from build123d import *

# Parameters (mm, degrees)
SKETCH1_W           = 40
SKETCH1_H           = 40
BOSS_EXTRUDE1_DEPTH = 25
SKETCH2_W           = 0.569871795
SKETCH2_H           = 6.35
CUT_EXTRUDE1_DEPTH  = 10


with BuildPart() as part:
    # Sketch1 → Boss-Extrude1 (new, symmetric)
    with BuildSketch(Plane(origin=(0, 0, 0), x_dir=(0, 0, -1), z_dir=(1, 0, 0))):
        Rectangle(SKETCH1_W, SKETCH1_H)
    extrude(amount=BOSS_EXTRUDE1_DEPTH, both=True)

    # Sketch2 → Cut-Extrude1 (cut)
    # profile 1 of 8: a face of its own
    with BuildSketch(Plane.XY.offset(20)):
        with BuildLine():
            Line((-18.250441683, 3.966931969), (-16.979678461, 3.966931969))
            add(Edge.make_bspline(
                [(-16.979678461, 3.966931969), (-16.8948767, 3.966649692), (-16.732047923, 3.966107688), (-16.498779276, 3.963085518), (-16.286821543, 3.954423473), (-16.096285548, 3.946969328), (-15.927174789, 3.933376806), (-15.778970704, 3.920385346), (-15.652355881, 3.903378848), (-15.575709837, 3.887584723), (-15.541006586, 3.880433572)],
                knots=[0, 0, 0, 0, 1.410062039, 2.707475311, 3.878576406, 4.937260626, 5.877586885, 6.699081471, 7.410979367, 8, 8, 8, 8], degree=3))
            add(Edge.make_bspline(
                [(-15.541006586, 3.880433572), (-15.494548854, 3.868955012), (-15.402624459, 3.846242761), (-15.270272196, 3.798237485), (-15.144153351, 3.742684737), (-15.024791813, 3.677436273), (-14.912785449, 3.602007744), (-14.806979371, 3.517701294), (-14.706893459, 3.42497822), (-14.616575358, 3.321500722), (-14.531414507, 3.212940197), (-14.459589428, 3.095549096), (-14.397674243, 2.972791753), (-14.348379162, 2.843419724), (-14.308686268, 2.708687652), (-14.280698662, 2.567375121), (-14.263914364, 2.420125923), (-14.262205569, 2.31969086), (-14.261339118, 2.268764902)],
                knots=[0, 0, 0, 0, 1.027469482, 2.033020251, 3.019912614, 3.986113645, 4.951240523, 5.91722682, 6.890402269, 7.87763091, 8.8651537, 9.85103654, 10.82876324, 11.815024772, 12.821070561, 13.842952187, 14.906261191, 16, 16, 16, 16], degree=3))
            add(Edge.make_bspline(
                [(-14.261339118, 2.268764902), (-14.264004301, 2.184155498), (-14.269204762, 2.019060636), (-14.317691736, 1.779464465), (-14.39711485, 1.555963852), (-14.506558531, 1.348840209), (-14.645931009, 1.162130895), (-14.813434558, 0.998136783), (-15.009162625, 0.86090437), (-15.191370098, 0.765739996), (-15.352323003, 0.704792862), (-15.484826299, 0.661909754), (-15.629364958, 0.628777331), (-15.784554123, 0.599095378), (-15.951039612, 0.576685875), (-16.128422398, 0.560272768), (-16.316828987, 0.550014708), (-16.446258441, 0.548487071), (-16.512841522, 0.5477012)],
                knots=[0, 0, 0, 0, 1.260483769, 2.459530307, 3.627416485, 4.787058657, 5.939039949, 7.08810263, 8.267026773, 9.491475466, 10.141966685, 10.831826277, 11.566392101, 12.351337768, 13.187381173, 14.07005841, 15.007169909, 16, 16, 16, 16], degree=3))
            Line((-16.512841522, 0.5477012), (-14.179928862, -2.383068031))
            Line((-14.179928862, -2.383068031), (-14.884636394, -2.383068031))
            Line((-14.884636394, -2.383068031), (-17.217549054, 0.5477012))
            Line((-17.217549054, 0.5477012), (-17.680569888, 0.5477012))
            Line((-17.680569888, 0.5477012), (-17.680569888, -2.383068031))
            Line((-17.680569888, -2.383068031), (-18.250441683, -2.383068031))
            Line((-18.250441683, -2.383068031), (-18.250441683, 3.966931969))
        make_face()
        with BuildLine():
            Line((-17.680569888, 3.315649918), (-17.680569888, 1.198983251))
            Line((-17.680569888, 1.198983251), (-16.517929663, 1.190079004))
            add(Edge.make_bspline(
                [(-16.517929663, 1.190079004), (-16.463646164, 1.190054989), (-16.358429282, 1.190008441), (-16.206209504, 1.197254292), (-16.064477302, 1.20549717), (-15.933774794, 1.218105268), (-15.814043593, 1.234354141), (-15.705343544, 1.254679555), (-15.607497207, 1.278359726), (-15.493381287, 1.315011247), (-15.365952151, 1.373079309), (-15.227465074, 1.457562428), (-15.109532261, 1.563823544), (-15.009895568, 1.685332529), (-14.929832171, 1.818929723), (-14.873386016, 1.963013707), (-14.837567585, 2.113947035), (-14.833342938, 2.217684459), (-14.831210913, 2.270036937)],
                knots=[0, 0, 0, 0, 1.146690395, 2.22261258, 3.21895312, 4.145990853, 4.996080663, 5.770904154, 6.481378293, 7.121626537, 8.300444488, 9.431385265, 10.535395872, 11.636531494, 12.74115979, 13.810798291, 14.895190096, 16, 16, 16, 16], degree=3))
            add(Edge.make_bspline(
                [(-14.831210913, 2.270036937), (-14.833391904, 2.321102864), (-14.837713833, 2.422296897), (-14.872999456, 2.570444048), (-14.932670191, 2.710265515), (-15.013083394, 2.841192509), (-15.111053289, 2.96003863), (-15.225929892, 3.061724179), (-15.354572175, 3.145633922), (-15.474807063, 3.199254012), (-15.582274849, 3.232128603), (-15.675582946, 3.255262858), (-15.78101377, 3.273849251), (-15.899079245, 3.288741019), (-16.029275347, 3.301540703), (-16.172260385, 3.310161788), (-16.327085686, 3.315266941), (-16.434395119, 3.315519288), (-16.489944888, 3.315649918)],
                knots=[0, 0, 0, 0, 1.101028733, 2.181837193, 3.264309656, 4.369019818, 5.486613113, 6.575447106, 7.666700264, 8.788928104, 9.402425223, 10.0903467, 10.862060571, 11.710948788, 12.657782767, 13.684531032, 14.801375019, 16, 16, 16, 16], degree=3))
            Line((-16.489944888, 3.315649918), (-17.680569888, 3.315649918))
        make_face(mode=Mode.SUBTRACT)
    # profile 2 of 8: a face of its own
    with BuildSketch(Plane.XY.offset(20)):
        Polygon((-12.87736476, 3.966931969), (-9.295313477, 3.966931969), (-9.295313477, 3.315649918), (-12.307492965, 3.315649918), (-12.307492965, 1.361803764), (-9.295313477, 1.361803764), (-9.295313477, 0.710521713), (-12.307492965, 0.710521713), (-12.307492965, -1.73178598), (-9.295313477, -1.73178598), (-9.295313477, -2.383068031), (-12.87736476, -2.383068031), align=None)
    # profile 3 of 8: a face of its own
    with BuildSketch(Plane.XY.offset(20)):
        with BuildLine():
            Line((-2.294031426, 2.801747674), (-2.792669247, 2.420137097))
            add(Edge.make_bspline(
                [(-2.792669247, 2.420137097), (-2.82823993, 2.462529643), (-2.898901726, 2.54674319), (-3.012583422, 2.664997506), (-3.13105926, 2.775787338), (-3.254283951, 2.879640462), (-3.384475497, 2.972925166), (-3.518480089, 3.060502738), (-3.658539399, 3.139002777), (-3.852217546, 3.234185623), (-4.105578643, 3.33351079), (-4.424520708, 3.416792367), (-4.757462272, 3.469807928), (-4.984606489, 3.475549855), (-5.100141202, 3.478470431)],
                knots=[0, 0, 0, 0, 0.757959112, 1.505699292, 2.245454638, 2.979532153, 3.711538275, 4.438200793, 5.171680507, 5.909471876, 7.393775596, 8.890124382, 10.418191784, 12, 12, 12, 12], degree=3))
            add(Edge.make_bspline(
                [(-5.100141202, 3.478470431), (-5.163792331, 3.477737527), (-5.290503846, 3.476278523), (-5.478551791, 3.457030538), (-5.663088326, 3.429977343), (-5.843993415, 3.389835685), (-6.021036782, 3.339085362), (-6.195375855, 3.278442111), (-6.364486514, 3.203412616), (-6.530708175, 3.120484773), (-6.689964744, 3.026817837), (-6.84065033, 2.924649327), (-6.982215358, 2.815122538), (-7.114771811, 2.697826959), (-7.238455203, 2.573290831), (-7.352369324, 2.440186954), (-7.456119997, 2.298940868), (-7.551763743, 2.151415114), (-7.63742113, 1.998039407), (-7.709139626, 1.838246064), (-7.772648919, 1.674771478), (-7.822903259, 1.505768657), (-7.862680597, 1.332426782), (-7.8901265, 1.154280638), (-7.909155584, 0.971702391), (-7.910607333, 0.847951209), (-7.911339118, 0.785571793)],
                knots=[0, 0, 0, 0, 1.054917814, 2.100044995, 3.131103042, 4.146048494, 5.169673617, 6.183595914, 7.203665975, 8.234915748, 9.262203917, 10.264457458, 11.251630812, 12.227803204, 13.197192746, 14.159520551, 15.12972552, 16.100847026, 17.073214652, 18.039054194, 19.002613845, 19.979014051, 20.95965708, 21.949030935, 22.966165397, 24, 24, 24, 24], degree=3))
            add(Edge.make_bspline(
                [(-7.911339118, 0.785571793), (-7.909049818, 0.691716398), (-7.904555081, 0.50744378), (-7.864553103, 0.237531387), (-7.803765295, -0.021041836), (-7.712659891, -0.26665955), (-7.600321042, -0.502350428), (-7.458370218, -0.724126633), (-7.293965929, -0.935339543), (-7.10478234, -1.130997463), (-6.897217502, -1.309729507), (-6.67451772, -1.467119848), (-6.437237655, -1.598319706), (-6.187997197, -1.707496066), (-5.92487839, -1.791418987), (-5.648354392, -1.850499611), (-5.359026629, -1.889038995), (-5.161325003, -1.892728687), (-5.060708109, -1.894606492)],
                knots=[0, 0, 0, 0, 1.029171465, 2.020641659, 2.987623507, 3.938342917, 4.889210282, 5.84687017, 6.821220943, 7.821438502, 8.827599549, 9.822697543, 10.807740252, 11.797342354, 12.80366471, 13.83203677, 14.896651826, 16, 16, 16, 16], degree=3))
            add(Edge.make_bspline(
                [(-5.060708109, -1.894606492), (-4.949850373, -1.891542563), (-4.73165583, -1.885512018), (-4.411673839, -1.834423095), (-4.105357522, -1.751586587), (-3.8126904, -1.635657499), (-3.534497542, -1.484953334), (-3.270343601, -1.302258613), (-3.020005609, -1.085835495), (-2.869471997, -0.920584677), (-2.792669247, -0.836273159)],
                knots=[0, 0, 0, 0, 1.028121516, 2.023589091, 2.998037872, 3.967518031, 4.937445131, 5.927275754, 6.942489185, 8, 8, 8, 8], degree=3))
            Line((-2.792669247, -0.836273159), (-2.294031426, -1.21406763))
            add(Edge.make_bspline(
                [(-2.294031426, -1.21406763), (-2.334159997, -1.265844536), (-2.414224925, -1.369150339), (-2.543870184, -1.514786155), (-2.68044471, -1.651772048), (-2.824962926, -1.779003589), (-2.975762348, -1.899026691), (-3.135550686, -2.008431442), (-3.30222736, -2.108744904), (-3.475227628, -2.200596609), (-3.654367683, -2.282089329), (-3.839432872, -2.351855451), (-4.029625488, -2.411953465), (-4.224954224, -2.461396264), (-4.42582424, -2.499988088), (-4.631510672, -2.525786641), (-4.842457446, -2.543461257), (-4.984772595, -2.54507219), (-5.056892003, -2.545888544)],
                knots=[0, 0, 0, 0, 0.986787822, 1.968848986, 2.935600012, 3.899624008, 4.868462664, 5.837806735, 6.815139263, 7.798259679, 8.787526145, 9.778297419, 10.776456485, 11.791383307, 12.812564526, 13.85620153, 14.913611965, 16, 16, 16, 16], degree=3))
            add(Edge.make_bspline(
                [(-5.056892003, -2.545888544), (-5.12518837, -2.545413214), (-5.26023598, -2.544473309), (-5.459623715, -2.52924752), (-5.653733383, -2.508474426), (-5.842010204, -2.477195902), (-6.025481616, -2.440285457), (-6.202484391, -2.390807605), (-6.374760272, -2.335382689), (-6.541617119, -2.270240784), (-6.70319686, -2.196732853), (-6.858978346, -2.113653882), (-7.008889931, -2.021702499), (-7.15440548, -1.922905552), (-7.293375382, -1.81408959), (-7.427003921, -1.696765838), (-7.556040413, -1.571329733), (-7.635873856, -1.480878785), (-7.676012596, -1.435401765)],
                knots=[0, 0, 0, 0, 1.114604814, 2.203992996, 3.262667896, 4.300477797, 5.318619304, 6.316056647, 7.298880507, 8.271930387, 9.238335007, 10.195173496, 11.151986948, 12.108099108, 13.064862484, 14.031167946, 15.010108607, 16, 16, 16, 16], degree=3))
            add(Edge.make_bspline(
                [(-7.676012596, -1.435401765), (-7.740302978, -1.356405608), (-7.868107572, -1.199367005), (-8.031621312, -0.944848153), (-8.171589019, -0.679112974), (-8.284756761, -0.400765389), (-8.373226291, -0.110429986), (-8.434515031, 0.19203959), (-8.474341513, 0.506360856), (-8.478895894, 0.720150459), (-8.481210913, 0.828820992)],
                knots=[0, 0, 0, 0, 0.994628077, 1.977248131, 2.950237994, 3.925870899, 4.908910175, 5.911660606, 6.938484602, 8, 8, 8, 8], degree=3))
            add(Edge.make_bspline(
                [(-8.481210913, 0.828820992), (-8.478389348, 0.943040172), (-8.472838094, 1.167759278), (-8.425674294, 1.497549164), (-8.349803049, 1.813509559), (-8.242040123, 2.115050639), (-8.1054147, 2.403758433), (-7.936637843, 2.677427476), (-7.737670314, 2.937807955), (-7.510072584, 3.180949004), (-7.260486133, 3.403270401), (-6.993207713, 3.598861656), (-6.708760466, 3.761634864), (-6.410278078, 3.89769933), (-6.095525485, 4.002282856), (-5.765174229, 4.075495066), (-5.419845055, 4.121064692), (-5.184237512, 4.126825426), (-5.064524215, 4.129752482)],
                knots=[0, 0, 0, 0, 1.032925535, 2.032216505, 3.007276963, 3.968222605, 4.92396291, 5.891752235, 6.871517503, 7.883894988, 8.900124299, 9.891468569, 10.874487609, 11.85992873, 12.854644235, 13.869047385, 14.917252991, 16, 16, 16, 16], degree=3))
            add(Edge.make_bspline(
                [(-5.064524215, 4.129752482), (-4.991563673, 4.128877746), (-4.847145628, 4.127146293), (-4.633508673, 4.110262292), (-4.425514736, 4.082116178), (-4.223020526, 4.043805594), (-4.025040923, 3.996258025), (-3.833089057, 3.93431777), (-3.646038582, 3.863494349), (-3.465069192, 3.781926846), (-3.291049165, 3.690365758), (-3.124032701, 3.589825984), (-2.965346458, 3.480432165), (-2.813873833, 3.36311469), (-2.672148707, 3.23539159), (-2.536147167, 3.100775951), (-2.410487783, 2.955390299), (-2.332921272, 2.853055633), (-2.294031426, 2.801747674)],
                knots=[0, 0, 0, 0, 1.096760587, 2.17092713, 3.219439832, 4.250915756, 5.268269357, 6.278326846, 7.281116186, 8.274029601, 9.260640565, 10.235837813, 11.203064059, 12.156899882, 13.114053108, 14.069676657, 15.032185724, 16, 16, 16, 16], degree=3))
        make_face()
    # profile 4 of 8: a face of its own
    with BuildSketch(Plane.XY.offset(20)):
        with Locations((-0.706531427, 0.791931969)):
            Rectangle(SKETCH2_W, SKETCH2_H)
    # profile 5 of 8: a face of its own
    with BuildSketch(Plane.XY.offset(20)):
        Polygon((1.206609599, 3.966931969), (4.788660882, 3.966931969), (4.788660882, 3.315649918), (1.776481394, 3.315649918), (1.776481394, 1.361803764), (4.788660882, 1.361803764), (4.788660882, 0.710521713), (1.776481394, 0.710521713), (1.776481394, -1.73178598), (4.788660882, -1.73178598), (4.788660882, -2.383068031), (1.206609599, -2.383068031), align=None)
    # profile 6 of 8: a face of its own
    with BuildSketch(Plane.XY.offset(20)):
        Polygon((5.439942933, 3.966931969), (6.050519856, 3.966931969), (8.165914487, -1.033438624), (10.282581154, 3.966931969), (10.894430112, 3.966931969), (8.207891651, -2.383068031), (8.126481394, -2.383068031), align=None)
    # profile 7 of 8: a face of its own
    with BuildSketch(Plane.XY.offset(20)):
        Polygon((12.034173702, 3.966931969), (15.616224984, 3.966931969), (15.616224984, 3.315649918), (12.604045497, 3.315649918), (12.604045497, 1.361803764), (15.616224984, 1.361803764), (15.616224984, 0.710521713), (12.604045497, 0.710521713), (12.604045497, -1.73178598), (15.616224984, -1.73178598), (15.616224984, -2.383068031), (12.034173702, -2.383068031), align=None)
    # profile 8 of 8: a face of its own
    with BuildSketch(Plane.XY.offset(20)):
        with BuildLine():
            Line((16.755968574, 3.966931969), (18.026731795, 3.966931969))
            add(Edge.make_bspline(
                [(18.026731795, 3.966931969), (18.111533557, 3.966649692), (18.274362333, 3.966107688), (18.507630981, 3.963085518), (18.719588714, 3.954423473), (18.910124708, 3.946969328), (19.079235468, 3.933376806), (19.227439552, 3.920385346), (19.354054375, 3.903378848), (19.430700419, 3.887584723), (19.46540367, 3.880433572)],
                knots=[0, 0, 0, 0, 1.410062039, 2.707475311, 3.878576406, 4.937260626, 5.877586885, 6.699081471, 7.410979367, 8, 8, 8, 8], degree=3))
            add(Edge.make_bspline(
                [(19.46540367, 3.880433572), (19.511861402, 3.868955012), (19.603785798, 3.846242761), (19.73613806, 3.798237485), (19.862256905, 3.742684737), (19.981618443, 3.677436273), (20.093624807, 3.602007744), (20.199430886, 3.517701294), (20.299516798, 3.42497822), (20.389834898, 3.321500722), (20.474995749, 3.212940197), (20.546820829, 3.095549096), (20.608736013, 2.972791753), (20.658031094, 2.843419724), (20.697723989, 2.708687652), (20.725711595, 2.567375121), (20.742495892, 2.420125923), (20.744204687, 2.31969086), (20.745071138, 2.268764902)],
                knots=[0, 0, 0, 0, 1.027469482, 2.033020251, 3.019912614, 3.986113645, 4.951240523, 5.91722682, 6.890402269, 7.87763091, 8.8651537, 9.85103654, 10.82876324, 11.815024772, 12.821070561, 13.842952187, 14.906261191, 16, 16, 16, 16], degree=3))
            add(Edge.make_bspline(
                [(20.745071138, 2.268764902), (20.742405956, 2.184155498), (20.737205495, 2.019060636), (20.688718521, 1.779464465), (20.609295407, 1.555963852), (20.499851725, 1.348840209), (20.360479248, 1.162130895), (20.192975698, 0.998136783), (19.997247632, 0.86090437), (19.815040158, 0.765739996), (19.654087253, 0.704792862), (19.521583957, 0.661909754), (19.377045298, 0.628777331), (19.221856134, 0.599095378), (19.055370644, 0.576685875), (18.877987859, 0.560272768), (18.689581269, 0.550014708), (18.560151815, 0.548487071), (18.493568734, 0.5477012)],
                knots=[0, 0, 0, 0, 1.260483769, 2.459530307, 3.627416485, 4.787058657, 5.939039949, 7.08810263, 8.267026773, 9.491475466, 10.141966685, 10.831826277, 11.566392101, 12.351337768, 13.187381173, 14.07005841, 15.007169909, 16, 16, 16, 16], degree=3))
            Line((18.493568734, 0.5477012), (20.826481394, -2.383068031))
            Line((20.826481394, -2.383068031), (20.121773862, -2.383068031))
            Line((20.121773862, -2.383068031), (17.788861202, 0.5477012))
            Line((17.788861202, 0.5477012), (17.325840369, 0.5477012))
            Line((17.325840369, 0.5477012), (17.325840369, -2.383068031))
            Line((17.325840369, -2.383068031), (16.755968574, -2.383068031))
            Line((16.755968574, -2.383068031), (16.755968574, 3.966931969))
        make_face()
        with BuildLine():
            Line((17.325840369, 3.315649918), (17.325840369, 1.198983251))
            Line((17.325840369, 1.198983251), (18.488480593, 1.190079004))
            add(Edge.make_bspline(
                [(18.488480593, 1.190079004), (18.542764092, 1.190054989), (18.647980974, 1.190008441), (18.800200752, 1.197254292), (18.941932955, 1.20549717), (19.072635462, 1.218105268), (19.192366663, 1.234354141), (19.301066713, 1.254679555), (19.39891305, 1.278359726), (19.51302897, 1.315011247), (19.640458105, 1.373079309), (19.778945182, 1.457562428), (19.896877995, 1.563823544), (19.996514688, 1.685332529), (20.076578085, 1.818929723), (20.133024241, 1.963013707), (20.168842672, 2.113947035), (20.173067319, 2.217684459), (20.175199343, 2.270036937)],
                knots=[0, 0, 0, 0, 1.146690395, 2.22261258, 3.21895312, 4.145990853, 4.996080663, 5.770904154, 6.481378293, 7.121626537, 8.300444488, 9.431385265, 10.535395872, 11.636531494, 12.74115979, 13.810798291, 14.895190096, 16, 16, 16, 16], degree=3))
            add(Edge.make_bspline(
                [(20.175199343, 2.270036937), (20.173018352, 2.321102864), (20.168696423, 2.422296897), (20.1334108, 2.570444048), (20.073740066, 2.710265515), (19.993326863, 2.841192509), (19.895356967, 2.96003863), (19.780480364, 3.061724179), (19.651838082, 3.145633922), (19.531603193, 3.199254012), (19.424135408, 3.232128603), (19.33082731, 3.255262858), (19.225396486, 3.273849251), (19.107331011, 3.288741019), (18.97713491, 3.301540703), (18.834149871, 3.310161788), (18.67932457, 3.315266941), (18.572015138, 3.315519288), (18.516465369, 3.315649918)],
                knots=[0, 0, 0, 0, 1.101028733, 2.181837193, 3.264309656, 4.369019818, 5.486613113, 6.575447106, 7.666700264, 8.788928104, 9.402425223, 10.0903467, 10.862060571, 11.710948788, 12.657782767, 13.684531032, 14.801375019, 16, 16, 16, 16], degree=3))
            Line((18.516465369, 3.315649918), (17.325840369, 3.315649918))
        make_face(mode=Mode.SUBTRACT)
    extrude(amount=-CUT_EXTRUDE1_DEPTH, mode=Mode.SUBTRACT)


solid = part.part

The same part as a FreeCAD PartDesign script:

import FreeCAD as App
import Part
import Sketcher


def add_polygon(sketch, points):
    """Adds a closed chain of lines whose ends are joined by coincident constraints."""
    first, n = sketch.GeometryCount, len(points)
    for a, b in zip(points, points[1:] + points[:1]):
        sketch.addGeometry(Part.LineSegment(App.Vector(*a, 0), App.Vector(*b, 0)), False)
    for i in range(n):
        sketch.addConstraint(Sketcher.Constraint("Coincident", first + i, 2, first + (i + 1) % n, 1))

doc = App.newDocument("Part")
body = doc.addObject("PartDesign::Body", "Body")

sketch1 = body.newObject("Sketcher::SketchObject", "Sketch")
sketch1.AttachmentSupport = (doc.getObject("YZ_Plane"), [""])
sketch1.MapMode = "FlatFace"
add_polygon(sketch1, [(20, 20), (-20, 20), (-20, -20), (20, -20)])
sketch1.addConstraint(Sketcher.Constraint("Horizontal", 0))
sketch1.addConstraint(Sketcher.Constraint("Vertical", 1))
sketch1.addConstraint(Sketcher.Constraint("Horizontal", 2))
sketch1.addConstraint(Sketcher.Constraint("Vertical", 3))
sketch1.addConstraint(Sketcher.Constraint("Symmetric", 0, 2, 2, 2, -1, 1))
sketch1.addConstraint(Sketcher.Constraint("Equal", 2, 1))
sketch1.addConstraint(Sketcher.Constraint("DistanceX", 0, 2, 0, 1, 40.0))
pad1 = body.newObject("PartDesign::Pad", "Pad")
pad1.Profile = sketch1
pad1.Length = 50
pad1.Midplane = True

sketch2 = body.newObject("Sketcher::SketchObject", "Sketch001")
sketch2.AttachmentSupport = (doc.getObject("XY_Plane"), [""])
sketch2.MapMode = "FlatFace"
sketch2.AttachmentOffset = App.Placement(App.Vector(0, 0, 20), App.Rotation())
sketch2.addGeometry(Part.LineSegment(App.Vector(-16.979678, 3.966932, 0), App.Vector(-18.250442, 3.966932, 0)), False)
sketch2.addGeometry(Part.LineSegment(App.Vector(-18.250442, 3.966932, 0), App.Vector(-18.250442, -2.383068, 0)), False)
sketch2.addGeometry(Part.LineSegment(App.Vector(-18.250442, -2.383068, 0), App.Vector(-17.68057, -2.383068, 0)), False)
sketch2.addGeometry(Part.LineSegment(App.Vector(-17.68057, -2.383068, 0), App.Vector(-17.68057, 0.547701, 0)), False)
sketch2.addGeometry(Part.LineSegment(App.Vector(-17.68057, 0.547701, 0), App.Vector(-17.217549, 0.547701, 0)), False)
sketch2.addGeometry(Part.LineSegment(App.Vector(-17.217549, 0.547701, 0), App.Vector(-14.884636, -2.383068, 0)), False)
sketch2.addGeometry(Part.LineSegment(App.Vector(-14.884636, -2.383068, 0), App.Vector(-14.179929, -2.383068, 0)), False)
sketch2.addGeometry(Part.LineSegment(App.Vector(-14.179929, -2.383068, 0), App.Vector(-16.512842, 0.547701, 0)), False)
sketch2.addGeometry(Part.BSplineCurve([App.Vector(-14.261339, 2.268765, 0), App.Vector(-14.264004, 2.184155, 0), App.Vector(-14.269205, 2.019061, 0), App.Vector(-14.317692, 1.779464, 0), App.Vector(-14.397115, 1.555964, 0), App.Vector(-14.506559, 1.34884, 0), App.Vector(-14.645931, 1.162131, 0), App.Vector(-14.813435, 0.998137, 0), App.Vector(-15.009163, 0.860904, 0), App.Vector(-15.19137, 0.76574, 0), App.Vector(-15.352323, 0.704793, 0), App.Vector(-15.484826, 0.66191, 0), App.Vector(-15.629365, 0.628777, 0), App.Vector(-15.784554, 0.599095, 0), App.Vector(-15.95104, 0.576686, 0), App.Vector(-16.128422, 0.560273, 0), App.Vector(-16.316829, 0.550015, 0), App.Vector(-16.446258, 0.548487, 0), App.Vector(-16.512842, 0.547701, 0)], [4, 1, 1, 1, 1, 1, 1, 1, 1, 1, 1, 1, 1, 1, 1, 1, 4], [0, 1.260483769, 2.459530307, 3.627416485, 4.787058657, 5.939039949, 7.08810263, 8.267026773, 9.491475466, 10.141966685, 10.831826277, 11.566392101, 12.351337768, 13.187381173, 14.07005841, 15.007169909, 16], False, 3, [1, 1, 1, 1, 1, 1, 1, 1, 1, 1, 1, 1, 1, 1, 1, 1, 1, 1, 1], False), False)
sketch2.addGeometry(Part.BSplineCurve([App.Vector(-15.541007, 3.880434, 0), App.Vector(-15.494549, 3.868955, 0), App.Vector(-15.402624, 3.846243, 0), App.Vector(-15.270272, 3.798237, 0), App.Vector(-15.144153, 3.742685, 0), App.Vector(-15.024792, 3.677436, 0), App.Vector(-14.912785, 3.602008, 0), App.Vector(-14.806979, 3.517701, 0), App.Vector(-14.706893, 3.424978, 0), App.Vector(-14.616575, 3.321501, 0), App.Vector(-14.531415, 3.21294, 0), App.Vector(-14.459589, 3.095549, 0), App.Vector(-14.397674, 2.972792, 0), App.Vector(-14.348379, 2.84342, 0), App.Vector(-14.308686, 2.708688, 0), App.Vector(-14.280699, 2.567375, 0), App.Vector(-14.263914, 2.420126, 0), App.Vector(-14.262206, 2.319691, 0), App.Vector(-14.261339, 2.268765, 0)], [4, 1, 1, 1, 1, 1, 1, 1, 1, 1, 1, 1, 1, 1, 1, 1, 4], [0, 1.027469482, 2.033020251, 3.019912614, 3.986113645, 4.951240523, 5.91722682, 6.890402269, 7.87763091, 8.8651537, 9.85103654, 10.82876324, 11.815024772, 12.821070561, 13.842952187, 14.906261191, 16], False, 3, [1, 1, 1, 1, 1, 1, 1, 1, 1, 1, 1, 1, 1, 1, 1, 1, 1, 1, 1], False), False)
sketch2.addGeometry(Part.BSplineCurve([App.Vector(-16.979678, 3.966932, 0), App.Vector(-16.894877, 3.96665, 0), App.Vector(-16.732048, 3.966108, 0), App.Vector(-16.498779, 3.963086, 0), App.Vector(-16.286822, 3.954423, 0), App.Vector(-16.096286, 3.946969, 0), App.Vector(-15.927175, 3.933377, 0), App.Vector(-15.778971, 3.920385, 0), App.Vector(-15.652356, 3.903379, 0), App.Vector(-15.57571, 3.887585, 0), App.Vector(-15.541007, 3.880434, 0)], [4, 1, 1, 1, 1, 1, 1, 1, 4], [0, 1.410062039, 2.707475311, 3.878576406, 4.937260626, 5.877586885, 6.699081471, 7.410979367, 8], False, 3, [1, 1, 1, 1, 1, 1, 1, 1, 1, 1, 1], False), False)
sketch2.addGeometry(Part.LineSegment(App.Vector(-17.68057, 3.31565, 0), App.Vector(-16.489945, 3.31565, 0)), False)
sketch2.addGeometry(Part.BSplineCurve([App.Vector(-14.831211, 2.270037, 0), App.Vector(-14.833392, 2.321103, 0), App.Vector(-14.837714, 2.422297, 0), App.Vector(-14.872999, 2.570444, 0), App.Vector(-14.93267, 2.710266, 0), App.Vector(-15.013083, 2.841193, 0), App.Vector(-15.111053, 2.960039, 0), App.Vector(-15.22593, 3.061724, 0), App.Vector(-15.354572, 3.145634, 0), App.Vector(-15.474807, 3.199254, 0), App.Vector(-15.582275, 3.232129, 0), App.Vector(-15.675583, 3.255263, 0), App.Vector(-15.781014, 3.273849, 0), App.Vector(-15.899079, 3.288741, 0), App.Vector(-16.029275, 3.301541, 0), App.Vector(-16.17226, 3.310162, 0), App.Vector(-16.327086, 3.315267, 0), App.Vector(-16.434395, 3.315519, 0), App.Vector(-16.489945, 3.31565, 0)], [4, 1, 1, 1, 1, 1, 1, 1, 1, 1, 1, 1, 1, 1, 1, 1, 4], [0, 1.101028733, 2.181837193, 3.264309656, 4.369019818, 5.486613113, 6.575447106, 7.666700264, 8.788928104, 9.402425223, 10.0903467, 10.862060571, 11.710948788, 12.657782767, 13.684531032, 14.801375019, 16], False, 3, [1, 1, 1, 1, 1, 1, 1, 1, 1, 1, 1, 1, 1, 1, 1, 1, 1, 1, 1], False), False)
sketch2.addGeometry(Part.BSplineCurve([App.Vector(-16.51793, 1.190079, 0), App.Vector(-16.463646, 1.190055, 0), App.Vector(-16.358429, 1.190008, 0), App.Vector(-16.20621, 1.197254, 0), App.Vector(-16.064477, 1.205497, 0), App.Vector(-15.933775, 1.218105, 0), App.Vector(-15.814044, 1.234354, 0), App.Vector(-15.705344, 1.25468, 0), App.Vector(-15.607497, 1.27836, 0), App.Vector(-15.493381, 1.315011, 0), App.Vector(-15.365952, 1.373079, 0), App.Vector(-15.227465, 1.457562, 0), App.Vector(-15.109532, 1.563824, 0), App.Vector(-15.009896, 1.685333, 0), App.Vector(-14.929832, 1.81893, 0), App.Vector(-14.873386, 1.963014, 0), App.Vector(-14.837568, 2.113947, 0), App.Vector(-14.833343, 2.217684, 0), App.Vector(-14.831211, 2.270037, 0)], [4, 1, 1, 1, 1, 1, 1, 1, 1, 1, 1, 1, 1, 1, 1, 1, 4], [0, 1.146690395, 2.22261258, 3.21895312, 4.145990853, 4.996080663, 5.770904154, 6.481378293, 7.121626537, 8.300444488, 9.431385265, 10.535395872, 11.636531494, 12.74115979, 13.810798291, 14.895190096, 16], False, 3, [1, 1, 1, 1, 1, 1, 1, 1, 1, 1, 1, 1, 1, 1, 1, 1, 1, 1, 1], False), False)
sketch2.addGeometry(Part.LineSegment(App.Vector(-16.51793, 1.190079, 0), App.Vector(-17.68057, 1.198983, 0)), False)
sketch2.addGeometry(Part.LineSegment(App.Vector(-17.68057, 1.198983, 0), App.Vector(-17.68057, 3.31565, 0)), False)
add_polygon(sketch2, [(-9.295313, 3.966932), (-12.877365, 3.966932), (-12.877365, -2.383068), (-9.295313, -2.383068), (-9.295313, -1.731786), (-12.307493, -1.731786), (-12.307493, 0.710522), (-9.295313, 0.710522), (-9.295313, 1.361804), (-12.307493, 1.361804), (-12.307493, 3.31565), (-9.295313, 3.31565)])
sketch2.addGeometry(Part.LineSegment(App.Vector(-2.792669, 2.420137, 0), App.Vector(-2.294031, 2.801748, 0)), False)
sketch2.addGeometry(Part.BSplineCurve([App.Vector(-5.064524, 4.129752, 0), App.Vector(-4.991564, 4.128878, 0), App.Vector(-4.847146, 4.127146, 0), App.Vector(-4.633509, 4.110262, 0), App.Vector(-4.425515, 4.082116, 0), App.Vector(-4.223021, 4.043806, 0), App.Vector(-4.025041, 3.996258, 0), App.Vector(-3.833089, 3.934318, 0), App.Vector(-3.646039, 3.863494, 0), App.Vector(-3.465069, 3.781927, 0), App.Vector(-3.291049, 3.690366, 0), App.Vector(-3.124033, 3.589826, 0), App.Vector(-2.965346, 3.480432, 0), App.Vector(-2.813874, 3.363115, 0), App.Vector(-2.672149, 3.235392, 0), App.Vector(-2.536147, 3.100776, 0), App.Vector(-2.410488, 2.95539, 0), App.Vector(-2.332921, 2.853056, 0), App.Vector(-2.294031, 2.801748, 0)], [4, 1, 1, 1, 1, 1, 1, 1, 1, 1, 1, 1, 1, 1, 1, 1, 4], [0, 1.096760587, 2.17092713, 3.219439832, 4.250915756, 5.268269357, 6.278326846, 7.281116186, 8.274029601, 9.260640565, 10.235837813, 11.203064059, 12.156899882, 13.114053108, 14.069676657, 15.032185724, 16], False, 3, [1, 1, 1, 1, 1, 1, 1, 1, 1, 1, 1, 1, 1, 1, 1, 1, 1, 1, 1], False), False)
sketch2.addGeometry(Part.BSplineCurve([App.Vector(-8.481211, 0.828821, 0), App.Vector(-8.478389, 0.94304, 0), App.Vector(-8.472838, 1.167759, 0), App.Vector(-8.425674, 1.497549, 0), App.Vector(-8.349803, 1.81351, 0), App.Vector(-8.24204, 2.115051, 0), App.Vector(-8.105415, 2.403758, 0), App.Vector(-7.936638, 2.677427, 0), App.Vector(-7.73767, 2.937808, 0), App.Vector(-7.510073, 3.180949, 0), App.Vector(-7.260486, 3.40327, 0), App.Vector(-6.993208, 3.598862, 0), App.Vector(-6.70876, 3.761635, 0), App.Vector(-6.410278, 3.897699, 0), App.Vector(-6.095525, 4.002283, 0), App.Vector(-5.765174, 4.075495, 0), App.Vector(-5.419845, 4.121065, 0), App.Vector(-5.184238, 4.126825, 0), App.Vector(-5.064524, 4.129752, 0)], [4, 1, 1, 1, 1, 1, 1, 1, 1, 1, 1, 1, 1, 1, 1, 1, 4], [0, 1.032925535, 2.032216505, 3.007276963, 3.968222605, 4.92396291, 5.891752235, 6.871517503, 7.883894988, 8.900124299, 9.891468569, 10.874487609, 11.85992873, 12.854644235, 13.869047385, 14.917252991, 16], False, 3, [1, 1, 1, 1, 1, 1, 1, 1, 1, 1, 1, 1, 1, 1, 1, 1, 1, 1, 1], False), False)
sketch2.addGeometry(Part.BSplineCurve([App.Vector(-7.676013, -1.435402, 0), App.Vector(-7.740303, -1.356406, 0), App.Vector(-7.868108, -1.199367, 0), App.Vector(-8.031621, -0.944848, 0), App.Vector(-8.171589, -0.679113, 0), App.Vector(-8.284757, -0.400765, 0), App.Vector(-8.373226, -0.11043, 0), App.Vector(-8.434515, 0.19204, 0), App.Vector(-8.474342, 0.506361, 0), App.Vector(-8.478896, 0.72015, 0), App.Vector(-8.481211, 0.828821, 0)], [4, 1, 1, 1, 1, 1, 1, 1, 4], [0, 0.994628077, 1.977248131, 2.950237994, 3.925870899, 4.908910175, 5.911660606, 6.938484602, 8], False, 3, [1, 1, 1, 1, 1, 1, 1, 1, 1, 1, 1], False), False)
sketch2.addGeometry(Part.BSplineCurve([App.Vector(-5.056892, -2.545889, 0), App.Vector(-5.125188, -2.545413, 0), App.Vector(-5.260236, -2.544473, 0), App.Vector(-5.459624, -2.529248, 0), App.Vector(-5.653733, -2.508474, 0), App.Vector(-5.84201, -2.477196, 0), App.Vector(-6.025482, -2.440285, 0), App.Vector(-6.202484, -2.390808, 0), App.Vector(-6.37476, -2.335383, 0), App.Vector(-6.541617, -2.270241, 0), App.Vector(-6.703197, -2.196733, 0), App.Vector(-6.858978, -2.113654, 0), App.Vector(-7.00889, -2.021702, 0), App.Vector(-7.154405, -1.922906, 0), App.Vector(-7.293375, -1.81409, 0), App.Vector(-7.427004, -1.696766, 0), App.Vector(-7.55604, -1.57133, 0), App.Vector(-7.635874, -1.480879, 0), App.Vector(-7.676013, -1.435402, 0)], [4, 1, 1, 1, 1, 1, 1, 1, 1, 1, 1, 1, 1, 1, 1, 1, 4], [0, 1.114604814, 2.203992996, 3.262667896, 4.300477797, 5.318619304, 6.316056647, 7.298880507, 8.271930387, 9.238335007, 10.195173496, 11.151986948, 12.108099108, 13.064862484, 14.031167946, 15.010108607, 16], False, 3, [1, 1, 1, 1, 1, 1, 1, 1, 1, 1, 1, 1, 1, 1, 1, 1, 1, 1, 1], False), False)
sketch2.addGeometry(Part.BSplineCurve([App.Vector(-2.294031, -1.214068, 0), App.Vector(-2.33416, -1.265845, 0), App.Vector(-2.414225, -1.36915, 0), App.Vector(-2.54387, -1.514786, 0), App.Vector(-2.680445, -1.651772, 0), App.Vector(-2.824963, -1.779004, 0), App.Vector(-2.975762, -1.899027, 0), App.Vector(-3.135551, -2.008431, 0), App.Vector(-3.302227, -2.108745, 0), App.Vector(-3.475228, -2.200597, 0), App.Vector(-3.654368, -2.282089, 0), App.Vector(-3.839433, -2.351855, 0), App.Vector(-4.029625, -2.411953, 0), App.Vector(-4.224954, -2.461396, 0), App.Vector(-4.425824, -2.499988, 0), App.Vector(-4.631511, -2.525787, 0), App.Vector(-4.842457, -2.543461, 0), App.Vector(-4.984773, -2.545072, 0), App.Vector(-5.056892, -2.545889, 0)], [4, 1, 1, 1, 1, 1, 1, 1, 1, 1, 1, 1, 1, 1, 1, 1, 4], [0, 0.986787822, 1.968848986, 2.935600012, 3.899624008, 4.868462664, 5.837806735, 6.815139263, 7.798259679, 8.787526145, 9.778297419, 10.776456485, 11.791383307, 12.812564526, 13.85620153, 14.913611965, 16], False, 3, [1, 1, 1, 1, 1, 1, 1, 1, 1, 1, 1, 1, 1, 1, 1, 1, 1, 1, 1], False), False)
sketch2.addGeometry(Part.LineSegment(App.Vector(-2.294031, -1.214068, 0), App.Vector(-2.792669, -0.836273, 0)), False)
sketch2.addGeometry(Part.BSplineCurve([App.Vector(-5.060708, -1.894606, 0), App.Vector(-4.94985, -1.891543, 0), App.Vector(-4.731656, -1.885512, 0), App.Vector(-4.411674, -1.834423, 0), App.Vector(-4.105358, -1.751587, 0), App.Vector(-3.81269, -1.635657, 0), App.Vector(-3.534498, -1.484953, 0), App.Vector(-3.270344, -1.302259, 0), App.Vector(-3.020006, -1.085835, 0), App.Vector(-2.869472, -0.920585, 0), App.Vector(-2.792669, -0.836273, 0)], [4, 1, 1, 1, 1, 1, 1, 1, 4], [0, 1.028121516, 2.023589091, 2.998037872, 3.967518031, 4.937445131, 5.927275754, 6.942489185, 8], False, 3, [1, 1, 1, 1, 1, 1, 1, 1, 1, 1, 1], False), False)
sketch2.addGeometry(Part.BSplineCurve([App.Vector(-7.911339, 0.785572, 0), App.Vector(-7.90905, 0.691716, 0), App.Vector(-7.904555, 0.507444, 0), App.Vector(-7.864553, 0.237531, 0), App.Vector(-7.803765, -0.021042, 0), App.Vector(-7.71266, -0.26666, 0), App.Vector(-7.600321, -0.50235, 0), App.Vector(-7.45837, -0.724127, 0), App.Vector(-7.293966, -0.93534, 0), App.Vector(-7.104782, -1.130997, 0), App.Vector(-6.897218, -1.30973, 0), App.Vector(-6.674518, -1.46712, 0), App.Vector(-6.437238, -1.59832, 0), App.Vector(-6.187997, -1.707496, 0), App.Vector(-5.924878, -1.791419, 0), App.Vector(-5.648354, -1.8505, 0), App.Vector(-5.359027, -1.889039, 0), App.Vector(-5.161325, -1.892729, 0), App.Vector(-5.060708, -1.894606, 0)], [4, 1, 1, 1, 1, 1, 1, 1, 1, 1, 1, 1, 1, 1, 1, 1, 4], [0, 1.029171465, 2.020641659, 2.987623507, 3.938342917, 4.889210282, 5.84687017, 6.821220943, 7.821438502, 8.827599549, 9.822697543, 10.807740252, 11.797342354, 12.80366471, 13.83203677, 14.896651826, 16], False, 3, [1, 1, 1, 1, 1, 1, 1, 1, 1, 1, 1, 1, 1, 1, 1, 1, 1, 1, 1], False), False)
sketch2.addGeometry(Part.BSplineCurve([App.Vector(-5.100141, 3.47847, 0), App.Vector(-5.163792, 3.477738, 0), App.Vector(-5.290504, 3.476279, 0), App.Vector(-5.478552, 3.457031, 0), App.Vector(-5.663088, 3.429977, 0), App.Vector(-5.843993, 3.389836, 0), App.Vector(-6.021037, 3.339085, 0), App.Vector(-6.195376, 3.278442, 0), App.Vector(-6.364487, 3.203413, 0), App.Vector(-6.530708, 3.120485, 0), App.Vector(-6.689965, 3.026818, 0), App.Vector(-6.84065, 2.924649, 0), App.Vector(-6.982215, 2.815123, 0), App.Vector(-7.114772, 2.697827, 0), App.Vector(-7.238455, 2.573291, 0), App.Vector(-7.352369, 2.440187, 0), App.Vector(-7.45612, 2.298941, 0), App.Vector(-7.551764, 2.151415, 0), App.Vector(-7.637421, 1.998039, 0), App.Vector(-7.70914, 1.838246, 0), App.Vector(-7.772649, 1.674771, 0), App.Vector(-7.822903, 1.505769, 0), App.Vector(-7.862681, 1.332427, 0), App.Vector(-7.890127, 1.154281, 0), App.Vector(-7.909156, 0.971702, 0), App.Vector(-7.910607, 0.847951, 0), App.Vector(-7.911339, 0.785572, 0)], [4, 1, 1, 1, 1, 1, 1, 1, 1, 1, 1, 1, 1, 1, 1, 1, 1, 1, 1, 1, 1, 1, 1, 1, 4], [0, 1.054917814, 2.100044995, 3.131103042, 4.146048494, 5.169673617, 6.183595914, 7.203665975, 8.234915748, 9.262203917, 10.264457458, 11.251630812, 12.227803204, 13.197192746, 14.159520551, 15.12972552, 16.100847026, 17.073214652, 18.039054194, 19.002613845, 19.979014051, 20.95965708, 21.949030935, 22.966165397, 24], False, 3, [1, 1, 1, 1, 1, 1, 1, 1, 1, 1, 1, 1, 1, 1, 1, 1, 1, 1, 1, 1, 1, 1, 1, 1, 1, 1, 1], False), False)
sketch2.addGeometry(Part.BSplineCurve([App.Vector(-2.792669, 2.420137, 0), App.Vector(-2.82824, 2.46253, 0), App.Vector(-2.898902, 2.546743, 0), App.Vector(-3.012583, 2.664998, 0), App.Vector(-3.131059, 2.775787, 0), App.Vector(-3.254284, 2.87964, 0), App.Vector(-3.384475, 2.972925, 0), App.Vector(-3.51848, 3.060503, 0), App.Vector(-3.658539, 3.139003, 0), App.Vector(-3.852218, 3.234186, 0), App.Vector(-4.105579, 3.333511, 0), App.Vector(-4.424521, 3.416792, 0), App.Vector(-4.757462, 3.469808, 0), App.Vector(-4.984606, 3.47555, 0), App.Vector(-5.100141, 3.47847, 0)], [4, 1, 1, 1, 1, 1, 1, 1, 1, 1, 1, 1, 4], [0, 0.757959112, 1.505699292, 2.245454638, 2.979532153, 3.711538275, 4.438200793, 5.171680507, 5.909471876, 7.393775596, 8.890124382, 10.418191784, 12], False, 3, [1, 1, 1, 1, 1, 1, 1, 1, 1, 1, 1, 1, 1, 1, 1], False), False)
add_polygon(sketch2, [(-0.991467, 3.966932), (-0.991467, -2.383068), (-0.421596, -2.383068), (-0.421596, 3.966932)])
add_polygon(sketch2, [(4.788661, 3.966932), (1.20661, 3.966932), (1.20661, -2.383068), (4.788661, -2.383068), (4.788661, -1.731786), (1.776481, -1.731786), (1.776481, 0.710522), (4.788661, 0.710522), (4.788661, 1.361804), (1.776481, 1.361804), (1.776481, 3.31565), (4.788661, 3.31565)])
add_polygon(sketch2, [(6.05052, 3.966932), (5.439943, 3.966932), (8.126481, -2.383068), (8.207892, -2.383068), (10.89443, 3.966932), (10.282581, 3.966932), (8.165914, -1.033439)])
add_polygon(sketch2, [(15.616225, 3.966932), (12.034174, 3.966932), (12.034174, -2.383068), (15.616225, -2.383068), (15.616225, -1.731786), (12.604045, -1.731786), (12.604045, 0.710522), (15.616225, 0.710522), (15.616225, 1.361804), (12.604045, 1.361804), (12.604045, 3.31565), (15.616225, 3.31565)])
sketch2.addGeometry(Part.LineSegment(App.Vector(18.026732, 3.966932, 0), App.Vector(16.755969, 3.966932, 0)), False)
sketch2.addGeometry(Part.LineSegment(App.Vector(16.755969, 3.966932, 0), App.Vector(16.755969, -2.383068, 0)), False)
sketch2.addGeometry(Part.LineSegment(App.Vector(16.755969, -2.383068, 0), App.Vector(17.32584, -2.383068, 0)), False)
sketch2.addGeometry(Part.LineSegment(App.Vector(17.32584, -2.383068, 0), App.Vector(17.32584, 0.547701, 0)), False)
sketch2.addGeometry(Part.LineSegment(App.Vector(17.32584, 0.547701, 0), App.Vector(17.788861, 0.547701, 0)), False)
sketch2.addGeometry(Part.LineSegment(App.Vector(17.788861, 0.547701, 0), App.Vector(20.121774, -2.383068, 0)), False)
sketch2.addGeometry(Part.LineSegment(App.Vector(20.121774, -2.383068, 0), App.Vector(20.826481, -2.383068, 0)), False)
sketch2.addGeometry(Part.LineSegment(App.Vector(20.826481, -2.383068, 0), App.Vector(18.493569, 0.547701, 0)), False)
sketch2.addGeometry(Part.BSplineCurve([App.Vector(20.745071, 2.268765, 0), App.Vector(20.742406, 2.184155, 0), App.Vector(20.737205, 2.019061, 0), App.Vector(20.688719, 1.779464, 0), App.Vector(20.609295, 1.555964, 0), App.Vector(20.499852, 1.34884, 0), App.Vector(20.360479, 1.162131, 0), App.Vector(20.192976, 0.998137, 0), App.Vector(19.997248, 0.860904, 0), App.Vector(19.81504, 0.76574, 0), App.Vector(19.654087, 0.704793, 0), App.Vector(19.521584, 0.66191, 0), App.Vector(19.377045, 0.628777, 0), App.Vector(19.221856, 0.599095, 0), App.Vector(19.055371, 0.576686, 0), App.Vector(18.877988, 0.560273, 0), App.Vector(18.689581, 0.550015, 0), App.Vector(18.560152, 0.548487, 0), App.Vector(18.493569, 0.547701, 0)], [4, 1, 1, 1, 1, 1, 1, 1, 1, 1, 1, 1, 1, 1, 1, 1, 4], [0, 1.260483769, 2.459530307, 3.627416485, 4.787058657, 5.939039949, 7.08810263, 8.267026773, 9.491475466, 10.141966685, 10.831826277, 11.566392101, 12.351337768, 13.187381173, 14.07005841, 15.007169909, 16], False, 3, [1, 1, 1, 1, 1, 1, 1, 1, 1, 1, 1, 1, 1, 1, 1, 1, 1, 1, 1], False), False)
sketch2.addGeometry(Part.BSplineCurve([App.Vector(19.465404, 3.880434, 0), App.Vector(19.511861, 3.868955, 0), App.Vector(19.603786, 3.846243, 0), App.Vector(19.736138, 3.798237, 0), App.Vector(19.862257, 3.742685, 0), App.Vector(19.981618, 3.677436, 0), App.Vector(20.093625, 3.602008, 0), App.Vector(20.199431, 3.517701, 0), App.Vector(20.299517, 3.424978, 0), App.Vector(20.389835, 3.321501, 0), App.Vector(20.474996, 3.21294, 0), App.Vector(20.546821, 3.095549, 0), App.Vector(20.608736, 2.972792, 0), App.Vector(20.658031, 2.84342, 0), App.Vector(20.697724, 2.708688, 0), App.Vector(20.725712, 2.567375, 0), App.Vector(20.742496, 2.420126, 0), App.Vector(20.744205, 2.319691, 0), App.Vector(20.745071, 2.268765, 0)], [4, 1, 1, 1, 1, 1, 1, 1, 1, 1, 1, 1, 1, 1, 1, 1, 4], [0, 1.027469482, 2.033020251, 3.019912614, 3.986113645, 4.951240523, 5.91722682, 6.890402269, 7.87763091, 8.8651537, 9.85103654, 10.82876324, 11.815024772, 12.821070561, 13.842952187, 14.906261191, 16], False, 3, [1, 1, 1, 1, 1, 1, 1, 1, 1, 1, 1, 1, 1, 1, 1, 1, 1, 1, 1], False), False)
sketch2.addGeometry(Part.BSplineCurve([App.Vector(18.026732, 3.966932, 0), App.Vector(18.111534, 3.96665, 0), App.Vector(18.274362, 3.966108, 0), App.Vector(18.507631, 3.963086, 0), App.Vector(18.719589, 3.954423, 0), App.Vector(18.910125, 3.946969, 0), App.Vector(19.079235, 3.933377, 0), App.Vector(19.22744, 3.920385, 0), App.Vector(19.354054, 3.903379, 0), App.Vector(19.4307, 3.887585, 0), App.Vector(19.465404, 3.880434, 0)], [4, 1, 1, 1, 1, 1, 1, 1, 4], [0, 1.410062039, 2.707475311, 3.878576406, 4.937260626, 5.877586885, 6.699081471, 7.410979367, 8], False, 3, [1, 1, 1, 1, 1, 1, 1, 1, 1, 1, 1], False), False)
sketch2.addGeometry(Part.LineSegment(App.Vector(17.32584, 3.31565, 0), App.Vector(18.516465, 3.31565, 0)), False)
sketch2.addGeometry(Part.BSplineCurve([App.Vector(20.175199, 2.270037, 0), App.Vector(20.173018, 2.321103, 0), App.Vector(20.168696, 2.422297, 0), App.Vector(20.133411, 2.570444, 0), App.Vector(20.07374, 2.710266, 0), App.Vector(19.993327, 2.841193, 0), App.Vector(19.895357, 2.960039, 0), App.Vector(19.78048, 3.061724, 0), App.Vector(19.651838, 3.145634, 0), App.Vector(19.531603, 3.199254, 0), App.Vector(19.424135, 3.232129, 0), App.Vector(19.330827, 3.255263, 0), App.Vector(19.225396, 3.273849, 0), App.Vector(19.107331, 3.288741, 0), App.Vector(18.977135, 3.301541, 0), App.Vector(18.83415, 3.310162, 0), App.Vector(18.679325, 3.315267, 0), App.Vector(18.572015, 3.315519, 0), App.Vector(18.516465, 3.31565, 0)], [4, 1, 1, 1, 1, 1, 1, 1, 1, 1, 1, 1, 1, 1, 1, 1, 4], [0, 1.101028733, 2.181837193, 3.264309656, 4.369019818, 5.486613113, 6.575447106, 7.666700264, 8.788928104, 9.402425223, 10.0903467, 10.862060571, 11.710948788, 12.657782767, 13.684531032, 14.801375019, 16], False, 3, [1, 1, 1, 1, 1, 1, 1, 1, 1, 1, 1, 1, 1, 1, 1, 1, 1, 1, 1], False), False)
sketch2.addGeometry(Part.BSplineCurve([App.Vector(18.488481, 1.190079, 0), App.Vector(18.542764, 1.190055, 0), App.Vector(18.647981, 1.190008, 0), App.Vector(18.800201, 1.197254, 0), App.Vector(18.941933, 1.205497, 0), App.Vector(19.072635, 1.218105, 0), App.Vector(19.192367, 1.234354, 0), App.Vector(19.301067, 1.25468, 0), App.Vector(19.398913, 1.27836, 0), App.Vector(19.513029, 1.315011, 0), App.Vector(19.640458, 1.373079, 0), App.Vector(19.778945, 1.457562, 0), App.Vector(19.896878, 1.563824, 0), App.Vector(19.996515, 1.685333, 0), App.Vector(20.076578, 1.81893, 0), App.Vector(20.133024, 1.963014, 0), App.Vector(20.168843, 2.113947, 0), App.Vector(20.173067, 2.217684, 0), App.Vector(20.175199, 2.270037, 0)], [4, 1, 1, 1, 1, 1, 1, 1, 1, 1, 1, 1, 1, 1, 1, 1, 4], [0, 1.146690395, 2.22261258, 3.21895312, 4.145990853, 4.996080663, 5.770904154, 6.481378293, 7.121626537, 8.300444488, 9.431385265, 10.535395872, 11.636531494, 12.74115979, 13.810798291, 14.895190096, 16], False, 3, [1, 1, 1, 1, 1, 1, 1, 1, 1, 1, 1, 1, 1, 1, 1, 1, 1, 1, 1], False), False)
sketch2.addGeometry(Part.LineSegment(App.Vector(18.488481, 1.190079, 0), App.Vector(17.32584, 1.198983, 0)), False)
sketch2.addGeometry(Part.LineSegment(App.Vector(17.32584, 1.198983, 0), App.Vector(17.32584, 3.31565, 0)), False)
sketch2.addConstraint(Sketcher.Constraint("Block", 8))
sketch2.addConstraint(Sketcher.Constraint("Block", 9))
sketch2.addConstraint(Sketcher.Constraint("Block", 10))
sketch2.addConstraint(Sketcher.Constraint("Block", 12))
sketch2.addConstraint(Sketcher.Constraint("Block", 13))
sketch2.addConstraint(Sketcher.Constraint("Block", 29))
sketch2.addConstraint(Sketcher.Constraint("Block", 30))
sketch2.addConstraint(Sketcher.Constraint("Block", 31))
sketch2.addConstraint(Sketcher.Constraint("Block", 32))
sketch2.addConstraint(Sketcher.Constraint("Block", 33))
sketch2.addConstraint(Sketcher.Constraint("Block", 35))
sketch2.addConstraint(Sketcher.Constraint("Block", 36))
sketch2.addConstraint(Sketcher.Constraint("Block", 37))
sketch2.addConstraint(Sketcher.Constraint("Block", 38))
sketch2.addConstraint(Sketcher.Constraint("Block", 82))
sketch2.addConstraint(Sketcher.Constraint("Block", 83))
sketch2.addConstraint(Sketcher.Constraint("Block", 84))
sketch2.addConstraint(Sketcher.Constraint("Block", 86))
sketch2.addConstraint(Sketcher.Constraint("Block", 87))
sketch2.addConstraint(Sketcher.Constraint("Coincident", 0, 2, 1, 1))
sketch2.addConstraint(Sketcher.Constraint("Coincident", 1, 2, 2, 1))
sketch2.addConstraint(Sketcher.Constraint("Coincident", 2, 2, 3, 1))
sketch2.addConstraint(Sketcher.Constraint("Coincident", 3, 2, 4, 1))
sketch2.addConstraint(Sketcher.Constraint("Coincident", 4, 2, 5, 1))
sketch2.addConstraint(Sketcher.Constraint("Coincident", 5, 2, 6, 1))
sketch2.addConstraint(Sketcher.Constraint("Coincident", 6, 2, 7, 1))
sketch2.addConstraint(Sketcher.Constraint("Coincident", 7, 2, 8, 2))
sketch2.addConstraint(Sketcher.Constraint("Coincident", 10, 1, 0, 1))
sketch2.addConstraint(Sketcher.Constraint("Coincident", 11, 2, 12, 2))
sketch2.addConstraint(Sketcher.Constraint("Coincident", 13, 1, 14, 1))
sketch2.addConstraint(Sketcher.Constraint("Coincident", 14, 2, 15, 1))
sketch2.addConstraint(Sketcher.Constraint("Coincident", 15, 2, 11, 1))
sketch2.addConstraint(Sketcher.Constraint("Coincident", 28, 2, 29, 2))
sketch2.addConstraint(Sketcher.Constraint("Coincident", 33, 1, 34, 1))
sketch2.addConstraint(Sketcher.Constraint("Coincident", 34, 2, 35, 2))
sketch2.addConstraint(Sketcher.Constraint("Coincident", 38, 1, 28, 1))
sketch2.addConstraint(Sketcher.Constraint("Coincident", 74, 2, 75, 1))
sketch2.addConstraint(Sketcher.Constraint("Coincident", 75, 2, 76, 1))
sketch2.addConstraint(Sketcher.Constraint("Coincident", 76, 2, 77, 1))
sketch2.addConstraint(Sketcher.Constraint("Coincident", 77, 2, 78, 1))
sketch2.addConstraint(Sketcher.Constraint("Coincident", 78, 2, 79, 1))
sketch2.addConstraint(Sketcher.Constraint("Coincident", 79, 2, 80, 1))
sketch2.addConstraint(Sketcher.Constraint("Coincident", 80, 2, 81, 1))
sketch2.addConstraint(Sketcher.Constraint("Coincident", 81, 2, 82, 2))
sketch2.addConstraint(Sketcher.Constraint("Coincident", 84, 1, 74, 1))
sketch2.addConstraint(Sketcher.Constraint("Coincident", 85, 2, 86, 2))
sketch2.addConstraint(Sketcher.Constraint("Coincident", 87, 1, 88, 1))
sketch2.addConstraint(Sketcher.Constraint("Coincident", 88, 2, 89, 1))
sketch2.addConstraint(Sketcher.Constraint("Coincident", 89, 2, 85, 1))
sketch2.addConstraint(Sketcher.Constraint("Horizontal", 0))
sketch2.addConstraint(Sketcher.Constraint("Vertical", 1))
sketch2.addConstraint(Sketcher.Constraint("Horizontal", 2))
sketch2.addConstraint(Sketcher.Constraint("Vertical", 3))
sketch2.addConstraint(Sketcher.Constraint("Horizontal", 4))
sketch2.addConstraint(Sketcher.Constraint("Horizontal", 6))
sketch2.addConstraint(Sketcher.Constraint("Horizontal", 11))
sketch2.addConstraint(Sketcher.Constraint("Vertical", 15))
sketch2.addConstraint(Sketcher.Constraint("Horizontal", 16))
sketch2.addConstraint(Sketcher.Constraint("Vertical", 17))
sketch2.addConstraint(Sketcher.Constraint("Horizontal", 18))
sketch2.addConstraint(Sketcher.Constraint("Vertical", 19))
sketch2.addConstraint(Sketcher.Constraint("Horizontal", 20))
sketch2.addConstraint(Sketcher.Constraint("Vertical", 21))
sketch2.addConstraint(Sketcher.Constraint("Horizontal", 22))
sketch2.addConstraint(Sketcher.Constraint("Vertical", 23))
sketch2.addConstraint(Sketcher.Constraint("Horizontal", 24))
sketch2.addConstraint(Sketcher.Constraint("Vertical", 25))
sketch2.addConstraint(Sketcher.Constraint("Horizontal", 26))
sketch2.addConstraint(Sketcher.Constraint("Vertical", 27))
sketch2.addConstraint(Sketcher.Constraint("Vertical", 39))
sketch2.addConstraint(Sketcher.Constraint("Horizontal", 40))
sketch2.addConstraint(Sketcher.Constraint("Vertical", 41))
sketch2.addConstraint(Sketcher.Constraint("Horizontal", 42))
sketch2.addConstraint(Sketcher.Constraint("Horizontal", 43))
sketch2.addConstraint(Sketcher.Constraint("Vertical", 44))
sketch2.addConstraint(Sketcher.Constraint("Horizontal", 45))
sketch2.addConstraint(Sketcher.Constraint("Vertical", 46))
sketch2.addConstraint(Sketcher.Constraint("Horizontal", 47))
sketch2.addConstraint(Sketcher.Constraint("Vertical", 48))
sketch2.addConstraint(Sketcher.Constraint("Horizontal", 49))
sketch2.addConstraint(Sketcher.Constraint("Vertical", 50))
sketch2.addConstraint(Sketcher.Constraint("Horizontal", 51))
sketch2.addConstraint(Sketcher.Constraint("Vertical", 52))
sketch2.addConstraint(Sketcher.Constraint("Horizontal", 53))
sketch2.addConstraint(Sketcher.Constraint("Vertical", 54))
sketch2.addConstraint(Sketcher.Constraint("Horizontal", 55))
sketch2.addConstraint(Sketcher.Constraint("Horizontal", 57))
sketch2.addConstraint(Sketcher.Constraint("Horizontal", 59))
sketch2.addConstraint(Sketcher.Constraint("Horizontal", 62))
sketch2.addConstraint(Sketcher.Constraint("Vertical", 63))
sketch2.addConstraint(Sketcher.Constraint("Horizontal", 64))
sketch2.addConstraint(Sketcher.Constraint("Vertical", 65))
sketch2.addConstraint(Sketcher.Constraint("Horizontal", 66))
sketch2.addConstraint(Sketcher.Constraint("Vertical", 67))
sketch2.addConstraint(Sketcher.Constraint("Horizontal", 68))
sketch2.addConstraint(Sketcher.Constraint("Vertical", 69))
sketch2.addConstraint(Sketcher.Constraint("Horizontal", 70))
sketch2.addConstraint(Sketcher.Constraint("Vertical", 71))
sketch2.addConstraint(Sketcher.Constraint("Horizontal", 72))
sketch2.addConstraint(Sketcher.Constraint("Vertical", 73))
sketch2.addConstraint(Sketcher.Constraint("Horizontal", 74))
sketch2.addConstraint(Sketcher.Constraint("Vertical", 75))
sketch2.addConstraint(Sketcher.Constraint("Horizontal", 76))
sketch2.addConstraint(Sketcher.Constraint("Vertical", 77))
sketch2.addConstraint(Sketcher.Constraint("Horizontal", 78))
sketch2.addConstraint(Sketcher.Constraint("Horizontal", 80))
sketch2.addConstraint(Sketcher.Constraint("Horizontal", 85))
sketch2.addConstraint(Sketcher.Constraint("Vertical", 89))
sketch2.addConstraint(Sketcher.Constraint("DistanceY", 1, 2, 1, 1, 6.35))
sketch2.addConstraint(Sketcher.Constraint("DistanceY", 17, 2, 17, 1, 6.35))
sketch2.addConstraint(Sketcher.Constraint("DistanceY", 39, 2, 39, 1, 6.35))
sketch2.addConstraint(Sketcher.Constraint("DistanceY", 44, 2, 44, 1, 6.35))
sketch2.addConstraint(Sketcher.Constraint("DistanceY", 63, 2, 63, 1, 6.35))
sketch2.addConstraint(Sketcher.Constraint("DistanceY", 75, 2, 75, 1, 6.35))
sketch2.addConstraint(Sketcher.Constraint("DistanceX", 2, 1, 2, 2, 0.569872))
sketch2.addConstraint(Sketcher.Constraint("DistanceX", 4, 1, 4, 2, 0.463021))
sketch2.addConstraint(Sketcher.Constraint("DistanceX", 16, 2, 16, 1, 3.582051))
sketch2.addConstraint(Sketcher.Constraint("DistanceX", 18, 1, 18, 2, 3.582051))
sketch2.addConstraint(Sketcher.Constraint("DistanceX", 20, 2, 20, 1, 3.012179))
sketch2.addConstraint(Sketcher.Constraint("DistanceX", 22, 1, 22, 2, 3.012179))
sketch2.addConstraint(Sketcher.Constraint("DistanceX", 24, 2, 24, 1, 3.012179))
sketch2.addConstraint(Sketcher.Constraint("DistanceX", 40, 1, 40, 2, 0.569872))
sketch2.addConstraint(Sketcher.Constraint("DistanceX", 43, 2, 43, 1, 3.582051))
sketch2.addConstraint(Sketcher.Constraint("DistanceX", 45, 1, 45, 2, 3.582051))
sketch2.addConstraint(Sketcher.Constraint("DistanceX", 47, 2, 47, 1, 3.012179))
sketch2.addConstraint(Sketcher.Constraint("DistanceX", 49, 1, 49, 2, 3.012179))
sketch2.addConstraint(Sketcher.Constraint("DistanceX", 51, 2, 51, 1, 3.012179))
sketch2.addConstraint(Sketcher.Constraint("DistanceX", 57, 1, 57, 2, 0.08141))
sketch2.addConstraint(Sketcher.Constraint("DistanceX", 59, 2, 59, 1, 0.611849))
sketch2.addConstraint(Sketcher.Constraint("DistanceX", 62, 2, 62, 1, 3.582051))
sketch2.addConstraint(Sketcher.Constraint("DistanceX", 64, 1, 64, 2, 3.582051))
sketch2.addConstraint(Sketcher.Constraint("DistanceX", 66, 2, 66, 1, 3.012179))
sketch2.addConstraint(Sketcher.Constraint("DistanceX", 68, 1, 68, 2, 3.012179))
sketch2.addConstraint(Sketcher.Constraint("DistanceX", 70, 2, 70, 1, 3.012179))
sketch2.addConstraint(Sketcher.Constraint("DistanceX", 76, 1, 76, 2, 0.569872))
sketch2.addConstraint(Sketcher.Constraint("DistanceX", 78, 1, 78, 2, 0.463021))
sketch2.addConstraint(Sketcher.Constraint("DistanceY", 3, 1, 3, 2, 2.930769))
sketch2.addConstraint(Sketcher.Constraint("DistanceY", 77, 1, 77, 2, 2.930769))
sketch2.addConstraint(Sketcher.Constraint("Distance", 61, 5.42942))
sketch2.addConstraint(Sketcher.Constraint("DistanceX", 0, 2, 0, 1, 1.270763))
sketch2.addConstraint(Sketcher.Constraint("DistanceX", 6, 1, 6, 2, 0.704708))
sketch2.addConstraint(Sketcher.Constraint("DistanceX", 11, 1, 11, 2, 1.190625))
sketch2.addConstraint(Sketcher.Constraint("DistanceX", 55, 2, 55, 1, 0.610577))
sketch2.addConstraint(Sketcher.Constraint("DistanceX", 74, 2, 74, 1, 1.270763))
sketch2.addConstraint(Sketcher.Constraint("DistanceX", 80, 1, 80, 2, 0.704708))
sketch2.addConstraint(Sketcher.Constraint("DistanceX", 85, 1, 85, 2, 1.190625))
sketch2.addConstraint(Sketcher.Constraint("DistanceY", 15, 1, 15, 2, 2.116667))
sketch2.addConstraint(Sketcher.Constraint("DistanceY", 19, 1, 19, 2, 0.651282))
sketch2.addConstraint(Sketcher.Constraint("DistanceY", 21, 1, 21, 2, 2.442308))
sketch2.addConstraint(Sketcher.Constraint("DistanceY", 23, 1, 23, 2, 0.651282))
sketch2.addConstraint(Sketcher.Constraint("DistanceY", 25, 1, 25, 2, 1.953846))
sketch2.addConstraint(Sketcher.Constraint("DistanceY", 46, 1, 46, 2, 0.651282))
sketch2.addConstraint(Sketcher.Constraint("DistanceY", 48, 1, 48, 2, 2.442308))
sketch2.addConstraint(Sketcher.Constraint("DistanceY", 50, 1, 50, 2, 0.651282))
sketch2.addConstraint(Sketcher.Constraint("DistanceY", 52, 1, 52, 2, 1.953846))
sketch2.addConstraint(Sketcher.Constraint("DistanceY", 65, 1, 65, 2, 0.651282))
sketch2.addConstraint(Sketcher.Constraint("DistanceY", 67, 1, 67, 2, 2.442308))
sketch2.addConstraint(Sketcher.Constraint("DistanceY", 69, 1, 69, 2, 0.651282))
sketch2.addConstraint(Sketcher.Constraint("DistanceY", 71, 1, 71, 2, 1.953846))
sketch2.addConstraint(Sketcher.Constraint("DistanceY", 89, 1, 89, 2, 2.116667))
sketch2.addConstraint(Sketcher.Constraint("DistanceY", 5, 2, -1, 1, 2.383068))
sketch2.addConstraint(Sketcher.Constraint("DistanceX", 6, 2, -1, 1, 14.179929))
sketch2.addConstraint(Sketcher.Constraint("DistanceY", -1, 1, 16, 2, 3.966932))
sketch2.addConstraint(Sketcher.Constraint("DistanceY", 39, 2, -1, 1, 2.383068))
sketch2.addConstraint(Sketcher.Constraint("DistanceX", -1, 1, 43, 2, 1.20661))
sketch2.addConstraint(Sketcher.Constraint("DistanceY", -1, 1, 43, 2, 3.966932))
sketch2.addConstraint(Sketcher.Constraint("DistanceY", -1, 1, 55, 2, 3.966932))
sketch2.addConstraint(Sketcher.Constraint("DistanceX", -1, 1, 56, 2, 8.126481))
sketch2.addConstraint(Sketcher.Constraint("DistanceY", 56, 2, -1, 1, 2.383068))
sketch2.addConstraint(Sketcher.Constraint("DistanceX", -1, 1, 58, 2, 10.89443))
sketch2.addConstraint(Sketcher.Constraint("DistanceY", -1, 1, 58, 2, 3.966932))
sketch2.addConstraint(Sketcher.Constraint("DistanceY", 60, 2, -1, 1, 1.033439))
sketch2.addConstraint(Sketcher.Constraint("DistanceX", -1, 1, 61, 2, 6.05052))
sketch2.addConstraint(Sketcher.Constraint("DistanceY", -1, 1, 62, 2, 3.966932))
sketch2.addConstraint(Sketcher.Constraint("DistanceY", 79, 2, -1, 1, 2.383068))
sketch2.addConstraint(Sketcher.Constraint("DistanceX", -1, 1, 80, 2, 20.826481))
sketch2.addConstraint(Sketcher.Constraint("DistanceX", 16, 2, -1, 1, 12.877365))
sketch2.addConstraint(Sketcher.Constraint("DistanceX", 39, 2, -1, 1, 0.991467))
sketch2.addConstraint(Sketcher.Constraint("DistanceX", -1, 1, 62, 2, 12.034174))
pocket1 = body.newObject("PartDesign::Pocket", "Pocket")
pocket1.Profile = sketch2
pocket1.Length = 10

doc.recompute()
